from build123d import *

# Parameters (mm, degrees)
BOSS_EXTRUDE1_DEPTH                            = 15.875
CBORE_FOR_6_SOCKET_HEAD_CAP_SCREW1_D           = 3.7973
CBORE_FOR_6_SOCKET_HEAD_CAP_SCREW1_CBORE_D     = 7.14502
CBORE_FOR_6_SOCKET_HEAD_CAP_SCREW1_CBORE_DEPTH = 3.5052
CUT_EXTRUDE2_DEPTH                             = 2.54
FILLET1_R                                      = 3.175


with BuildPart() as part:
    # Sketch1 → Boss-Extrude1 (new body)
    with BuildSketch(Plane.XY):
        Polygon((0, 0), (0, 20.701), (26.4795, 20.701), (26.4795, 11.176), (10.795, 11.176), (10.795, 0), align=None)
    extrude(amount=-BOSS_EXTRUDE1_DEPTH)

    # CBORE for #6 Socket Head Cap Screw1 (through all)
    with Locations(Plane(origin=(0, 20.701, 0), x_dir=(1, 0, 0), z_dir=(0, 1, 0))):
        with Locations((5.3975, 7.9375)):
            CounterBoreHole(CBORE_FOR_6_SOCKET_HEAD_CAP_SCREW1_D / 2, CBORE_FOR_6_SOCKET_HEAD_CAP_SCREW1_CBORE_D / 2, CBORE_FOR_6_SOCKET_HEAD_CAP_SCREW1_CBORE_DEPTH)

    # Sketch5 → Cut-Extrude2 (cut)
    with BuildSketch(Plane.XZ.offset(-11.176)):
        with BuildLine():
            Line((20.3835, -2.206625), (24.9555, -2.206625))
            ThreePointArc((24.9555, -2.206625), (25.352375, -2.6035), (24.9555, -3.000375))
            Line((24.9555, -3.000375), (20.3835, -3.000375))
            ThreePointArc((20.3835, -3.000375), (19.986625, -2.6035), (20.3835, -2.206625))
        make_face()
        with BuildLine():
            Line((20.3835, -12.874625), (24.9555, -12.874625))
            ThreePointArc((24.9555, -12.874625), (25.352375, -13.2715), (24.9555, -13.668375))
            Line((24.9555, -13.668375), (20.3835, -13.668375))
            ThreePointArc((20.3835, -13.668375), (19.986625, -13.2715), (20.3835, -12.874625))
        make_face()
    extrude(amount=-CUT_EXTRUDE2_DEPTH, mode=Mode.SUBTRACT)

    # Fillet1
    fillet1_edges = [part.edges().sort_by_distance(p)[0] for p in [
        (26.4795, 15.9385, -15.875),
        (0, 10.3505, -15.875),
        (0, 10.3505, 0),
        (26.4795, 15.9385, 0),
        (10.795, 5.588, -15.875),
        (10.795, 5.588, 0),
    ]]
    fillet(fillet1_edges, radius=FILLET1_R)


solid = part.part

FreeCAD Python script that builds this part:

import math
import FreeCAD as App
import Part
import Sketcher
from FreeCAD import Vector
Q = App.Units.Quantity


def edges_at(feature, points):
    """Names of the edges that pass closest to the given points."""
    edges = feature.Shape.Edges
    near = lambda p: min(range(len(edges)), key=lambda i: edges[i].distToShape(Part.Vertex(*p))[0])
    return sorted({f"Edge{near(p) + 1}" for p in points})


def add_polygon(sketch, points):
    """Adds a closed chain of lines whose ends are joined by coincident constraints."""
    first, n = sketch.GeometryCount, len(points)
    for a, b in zip(points, points[1:] + points[:1]):
        sketch.addGeometry(Part.LineSegment(App.Vector(*a, 0), App.Vector(*b, 0)), False)
    for i in range(n):
        sketch.addConstraint(Sketcher.Constraint("Coincident", first + i, 2, first + (i + 1) % n, 1))

doc = App.newDocument("Part")
params = doc.addObject("Spreadsheet::Sheet", "Params")
for row, (alias, value) in enumerate([
    ("sketch1_height", "0.44 in"),
    ("sketch1_width", "0.425 in"),
    ("sketch1_height2", "0.815 in"),
    ("pad1_length", "0.625 in"),
    ("hole_diameter", "0.1495 in"),
    ("hole_cbore_diameter", "0.2813 in"),
    ("hole_cbore_depth", "0.138 in"),
    ("sketch3_radius", "0.015625 in"),
    ("sketch3_width", "0.18 in"),
    ("pocket1_length", "0.1 in"),
    ("fillet_radius", "0.125 in"),
], start=1):
    params.set(f"A{row}", alias)
    params.set(f"B{row}", "=" + value)
    params.setAlias(f"B{row}", alias)

body = doc.addObject("PartDesign::Body", "Body")

# Sketch on XY plane
sketch1 = body.newObject("Sketcher::SketchObject", "Sketch")
sketch1.AttachmentSupport = (doc.getObject("XY_Plane"), [""])
sketch1.MapMode = "FlatFace"
add_polygon(sketch1, [(0, 21), (0, 0), (11, 0), (11, 11), (26, 11), (26, 21)])  # lines 0-5
sketch1.addConstraint(Sketcher.Constraint("Vertical", 0))
sketch1.addConstraint(Sketcher.Constraint("Horizontal", 1))
sketch1.addConstraint(Sketcher.Constraint("Vertical", 2))
sketch1.addConstraint(Sketcher.Constraint("Horizontal", 3))
sketch1.addConstraint(Sketcher.Constraint("Vertical", 4))
sketch1.addConstraint(Sketcher.Constraint("Horizontal", 5))
sketch1.addConstraint(Sketcher.Constraint("Coincident", 0, 2, -1, 1))
sketch1.addConstraint(Sketcher.Constraint("DistanceY", 2, 1, 2, 2, Q("0.44 in")))
sketch1.addConstraint(Sketcher.Constraint("DistanceX", 1, 1, 1, 2, Q("0.425 in")))
sketch1.addConstraint(Sketcher.Constraint("DistanceY", 0, 2, 0, 1, Q("0.815 in")))
sketch1.addConstraint(Sketcher.Constraint("DistanceX", 3, 1, 3, 2, Q("0.6175 in")))
sketch1.setExpression("Constraints[13]", "Params.sketch1_height")
sketch1.setExpression("Constraints[14]", "Params.sketch1_width")
sketch1.setExpression("Constraints[15]", "Params.sketch1_height2")
pad1 = body.newObject("PartDesign::Pad", "Pad")
pad1.Profile = sketch1
pad1.setExpression("Length", "Params.pad1_length")
pad1.Reversed = True

# Sketch on XZ plane
sketch2 = body.newObject("Sketcher::SketchObject", "Sketch001")
sketch2.AttachmentSupport = (doc.getObject("XZ_Plane"), [""])
sketch2.MapMode = "FlatFace"
sketch2.AttachmentOffset = App.Placement(Vector(0, 0, -0.815 * 25.4), App.Rotation())
sketch2.addGeometry(Part.Circle(Vector(5.4, -7.9, 0), Vector(0, 0, 1), 1.9), False)
sketch2.addConstraint(Sketcher.Constraint("Diameter", 0, Q("0.1495 in")))
sketch2.addConstraint(Sketcher.Constraint("DistanceY", 0, 3, -1, 1, Q("0.3125 in")))
sketch2.addConstraint(Sketcher.Constraint("DistanceX", -1, 1, 0, 3, Q("0.2125 in")))
doc.recompute()
hole = body.newObject("PartDesign::Hole", "Hole")
hole.Profile = sketch2
hole.ThreadType = "None"
hole.setExpression("Diameter", "Params.hole_diameter")
hole.DepthType = "ThroughAll"
hole.HoleCutType = "Counterbore"
hole.setExpression("HoleCutDiameter", "Params.hole_cbore_diameter")
hole.setExpression("HoleCutDepth", "Params.hole_cbore_depth")
hole.Reversed = True

# Sketch on XZ plane
sketch3 = body.newObject("Sketcher::SketchObject", "Sketch002")
sketch3.AttachmentSupport = (doc.getObject("XZ_Plane"), [""])
sketch3.MapMode = "FlatFace"
sketch3.AttachmentOffset = App.Placement(Vector(0, 0, -0.44 * 25.4), App.Rotation())
sketch3.addGeometry(Part.LineSegment(Vector(24.96, -2.21, 0), Vector(20.38, -2.21, 0)), False)
sketch3.addGeometry(Part.ArcOfCircle(Part.Circle(Vector(20.38, -2.6, 0), Vector(0, 0, 1), 0.4), math.radians(90), math.radians(270)), False)
sketch3.addGeometry(Part.LineSegment(Vector(20.38, -3, 0), Vector(24.96, -3, 0)), False)
sketch3.addGeometry(Part.ArcOfCircle(Part.Circle(Vector(24.96, -2.6, 0), Vector(0, 0, 1), 0.4), math.radians(-90), math.radians(90)), False)
sketch3.addGeometry(Part.LineSegment(Vector(24.96, -12.87, 0), Vector(20.38, -12.87, 0)), False)
sketch3.addGeometry(Part.ArcOfCircle(Part.Circle(Vector(20.38, -13.27, 0), Vector(0, 0, 1), 0.4), math.radians(90), math.radians(270)), False)
sketch3.addGeometry(Part.LineSegment(Vector(20.38, -13.67, 0), Vector(24.96, -13.67, 0)), False)
sketch3.addGeometry(Part.ArcOfCircle(Part.Circle(Vector(24.96, -13.27, 0), Vector(0, 0, 1), 0.4), math.radians(-90), math.radians(90)), False)
sketch3.addConstraint(Sketcher.Constraint("Tangent", 0, 2, 1, 1))
sketch3.addConstraint(Sketcher.Constraint("Tangent", 1, 2, 2, 1))
sketch3.addConstraint(Sketcher.Constraint("Tangent", 2, 2, 3, 1))
sketch3.addConstraint(Sketcher.Constraint("Tangent", 3, 2, 0, 1))
sketch3.addConstraint(Sketcher.Constraint("Tangent", 4, 2, 5, 1))
sketch3.addConstraint(Sketcher.Constraint("Tangent", 5, 2, 6, 1))
sketch3.addConstraint(Sketcher.Constraint("Tangent", 6, 2, 7, 1))
sketch3.addConstraint(Sketcher.Constraint("Tangent", 7, 2, 4, 1))
sketch3.addConstraint(Sketcher.Constraint("Horizontal", 0))
sketch3.addConstraint(Sketcher.Constraint("Horizontal", 2))
sketch3.addConstraint(Sketcher.Constraint("Horizontal", 4))
sketch3.addConstraint(Sketcher.Constraint("Horizontal", 6))
sketch3.addConstraint(Sketcher.Constraint("Equal", 3, 5))
sketch3.addConstraint(Sketcher.Constraint("Vertical", 1, 3, 5, 3))
sketch3.addConstraint(Sketcher.Constraint("Vertical", 3, 3, 7, 3))
sketch3.addConstraint(Sketcher.Constraint("Radius", 1, Q("0.015625 in")))
sketch3.addConstraint(Sketcher.Constraint("DistanceX", 0, 2, 0, 1, Q("0.18 in")))
sketch3.addConstraint(Sketcher.Constraint("DistanceY", 5, 3, 1, 3, Q("0.42 in")))
sketch3.addConstraint(Sketcher.Constraint("DistanceX", -1, 1, 1, 3, Q("0.8025 in")))
sketch3.addConstraint(Sketcher.Constraint("DistanceY", 1, 3, -1, 1, Q("0.1025 in")))
sketch3.setExpression("Constraints[15]", "Params.sketch3_radius")
sketch3.setExpression("Constraints[16]", "Params.sketch3_width")
pocket1 = body.newObject("PartDesign::Pocket", "Pocket")
pocket1.Profile = sketch3
pocket1.setExpression("Length", "Params.pocket1_length")
doc.recompute()

fillet = body.newObject("PartDesign::Fillet", "Fillet")
fillet.Base = (pocket1, edges_at(pocket1, [
    (26.48, 15.938, -15.875),
    (0, 10.351, -15.875),
    (0, 10.351, 0),
    (26.48, 15.938, 0),
    (10.795, 5.588, -15.875),
    (10.795, 5.588, 0),
]))
fillet.setExpression("Radius", "Params.fillet_radius")

doc.recompute()
